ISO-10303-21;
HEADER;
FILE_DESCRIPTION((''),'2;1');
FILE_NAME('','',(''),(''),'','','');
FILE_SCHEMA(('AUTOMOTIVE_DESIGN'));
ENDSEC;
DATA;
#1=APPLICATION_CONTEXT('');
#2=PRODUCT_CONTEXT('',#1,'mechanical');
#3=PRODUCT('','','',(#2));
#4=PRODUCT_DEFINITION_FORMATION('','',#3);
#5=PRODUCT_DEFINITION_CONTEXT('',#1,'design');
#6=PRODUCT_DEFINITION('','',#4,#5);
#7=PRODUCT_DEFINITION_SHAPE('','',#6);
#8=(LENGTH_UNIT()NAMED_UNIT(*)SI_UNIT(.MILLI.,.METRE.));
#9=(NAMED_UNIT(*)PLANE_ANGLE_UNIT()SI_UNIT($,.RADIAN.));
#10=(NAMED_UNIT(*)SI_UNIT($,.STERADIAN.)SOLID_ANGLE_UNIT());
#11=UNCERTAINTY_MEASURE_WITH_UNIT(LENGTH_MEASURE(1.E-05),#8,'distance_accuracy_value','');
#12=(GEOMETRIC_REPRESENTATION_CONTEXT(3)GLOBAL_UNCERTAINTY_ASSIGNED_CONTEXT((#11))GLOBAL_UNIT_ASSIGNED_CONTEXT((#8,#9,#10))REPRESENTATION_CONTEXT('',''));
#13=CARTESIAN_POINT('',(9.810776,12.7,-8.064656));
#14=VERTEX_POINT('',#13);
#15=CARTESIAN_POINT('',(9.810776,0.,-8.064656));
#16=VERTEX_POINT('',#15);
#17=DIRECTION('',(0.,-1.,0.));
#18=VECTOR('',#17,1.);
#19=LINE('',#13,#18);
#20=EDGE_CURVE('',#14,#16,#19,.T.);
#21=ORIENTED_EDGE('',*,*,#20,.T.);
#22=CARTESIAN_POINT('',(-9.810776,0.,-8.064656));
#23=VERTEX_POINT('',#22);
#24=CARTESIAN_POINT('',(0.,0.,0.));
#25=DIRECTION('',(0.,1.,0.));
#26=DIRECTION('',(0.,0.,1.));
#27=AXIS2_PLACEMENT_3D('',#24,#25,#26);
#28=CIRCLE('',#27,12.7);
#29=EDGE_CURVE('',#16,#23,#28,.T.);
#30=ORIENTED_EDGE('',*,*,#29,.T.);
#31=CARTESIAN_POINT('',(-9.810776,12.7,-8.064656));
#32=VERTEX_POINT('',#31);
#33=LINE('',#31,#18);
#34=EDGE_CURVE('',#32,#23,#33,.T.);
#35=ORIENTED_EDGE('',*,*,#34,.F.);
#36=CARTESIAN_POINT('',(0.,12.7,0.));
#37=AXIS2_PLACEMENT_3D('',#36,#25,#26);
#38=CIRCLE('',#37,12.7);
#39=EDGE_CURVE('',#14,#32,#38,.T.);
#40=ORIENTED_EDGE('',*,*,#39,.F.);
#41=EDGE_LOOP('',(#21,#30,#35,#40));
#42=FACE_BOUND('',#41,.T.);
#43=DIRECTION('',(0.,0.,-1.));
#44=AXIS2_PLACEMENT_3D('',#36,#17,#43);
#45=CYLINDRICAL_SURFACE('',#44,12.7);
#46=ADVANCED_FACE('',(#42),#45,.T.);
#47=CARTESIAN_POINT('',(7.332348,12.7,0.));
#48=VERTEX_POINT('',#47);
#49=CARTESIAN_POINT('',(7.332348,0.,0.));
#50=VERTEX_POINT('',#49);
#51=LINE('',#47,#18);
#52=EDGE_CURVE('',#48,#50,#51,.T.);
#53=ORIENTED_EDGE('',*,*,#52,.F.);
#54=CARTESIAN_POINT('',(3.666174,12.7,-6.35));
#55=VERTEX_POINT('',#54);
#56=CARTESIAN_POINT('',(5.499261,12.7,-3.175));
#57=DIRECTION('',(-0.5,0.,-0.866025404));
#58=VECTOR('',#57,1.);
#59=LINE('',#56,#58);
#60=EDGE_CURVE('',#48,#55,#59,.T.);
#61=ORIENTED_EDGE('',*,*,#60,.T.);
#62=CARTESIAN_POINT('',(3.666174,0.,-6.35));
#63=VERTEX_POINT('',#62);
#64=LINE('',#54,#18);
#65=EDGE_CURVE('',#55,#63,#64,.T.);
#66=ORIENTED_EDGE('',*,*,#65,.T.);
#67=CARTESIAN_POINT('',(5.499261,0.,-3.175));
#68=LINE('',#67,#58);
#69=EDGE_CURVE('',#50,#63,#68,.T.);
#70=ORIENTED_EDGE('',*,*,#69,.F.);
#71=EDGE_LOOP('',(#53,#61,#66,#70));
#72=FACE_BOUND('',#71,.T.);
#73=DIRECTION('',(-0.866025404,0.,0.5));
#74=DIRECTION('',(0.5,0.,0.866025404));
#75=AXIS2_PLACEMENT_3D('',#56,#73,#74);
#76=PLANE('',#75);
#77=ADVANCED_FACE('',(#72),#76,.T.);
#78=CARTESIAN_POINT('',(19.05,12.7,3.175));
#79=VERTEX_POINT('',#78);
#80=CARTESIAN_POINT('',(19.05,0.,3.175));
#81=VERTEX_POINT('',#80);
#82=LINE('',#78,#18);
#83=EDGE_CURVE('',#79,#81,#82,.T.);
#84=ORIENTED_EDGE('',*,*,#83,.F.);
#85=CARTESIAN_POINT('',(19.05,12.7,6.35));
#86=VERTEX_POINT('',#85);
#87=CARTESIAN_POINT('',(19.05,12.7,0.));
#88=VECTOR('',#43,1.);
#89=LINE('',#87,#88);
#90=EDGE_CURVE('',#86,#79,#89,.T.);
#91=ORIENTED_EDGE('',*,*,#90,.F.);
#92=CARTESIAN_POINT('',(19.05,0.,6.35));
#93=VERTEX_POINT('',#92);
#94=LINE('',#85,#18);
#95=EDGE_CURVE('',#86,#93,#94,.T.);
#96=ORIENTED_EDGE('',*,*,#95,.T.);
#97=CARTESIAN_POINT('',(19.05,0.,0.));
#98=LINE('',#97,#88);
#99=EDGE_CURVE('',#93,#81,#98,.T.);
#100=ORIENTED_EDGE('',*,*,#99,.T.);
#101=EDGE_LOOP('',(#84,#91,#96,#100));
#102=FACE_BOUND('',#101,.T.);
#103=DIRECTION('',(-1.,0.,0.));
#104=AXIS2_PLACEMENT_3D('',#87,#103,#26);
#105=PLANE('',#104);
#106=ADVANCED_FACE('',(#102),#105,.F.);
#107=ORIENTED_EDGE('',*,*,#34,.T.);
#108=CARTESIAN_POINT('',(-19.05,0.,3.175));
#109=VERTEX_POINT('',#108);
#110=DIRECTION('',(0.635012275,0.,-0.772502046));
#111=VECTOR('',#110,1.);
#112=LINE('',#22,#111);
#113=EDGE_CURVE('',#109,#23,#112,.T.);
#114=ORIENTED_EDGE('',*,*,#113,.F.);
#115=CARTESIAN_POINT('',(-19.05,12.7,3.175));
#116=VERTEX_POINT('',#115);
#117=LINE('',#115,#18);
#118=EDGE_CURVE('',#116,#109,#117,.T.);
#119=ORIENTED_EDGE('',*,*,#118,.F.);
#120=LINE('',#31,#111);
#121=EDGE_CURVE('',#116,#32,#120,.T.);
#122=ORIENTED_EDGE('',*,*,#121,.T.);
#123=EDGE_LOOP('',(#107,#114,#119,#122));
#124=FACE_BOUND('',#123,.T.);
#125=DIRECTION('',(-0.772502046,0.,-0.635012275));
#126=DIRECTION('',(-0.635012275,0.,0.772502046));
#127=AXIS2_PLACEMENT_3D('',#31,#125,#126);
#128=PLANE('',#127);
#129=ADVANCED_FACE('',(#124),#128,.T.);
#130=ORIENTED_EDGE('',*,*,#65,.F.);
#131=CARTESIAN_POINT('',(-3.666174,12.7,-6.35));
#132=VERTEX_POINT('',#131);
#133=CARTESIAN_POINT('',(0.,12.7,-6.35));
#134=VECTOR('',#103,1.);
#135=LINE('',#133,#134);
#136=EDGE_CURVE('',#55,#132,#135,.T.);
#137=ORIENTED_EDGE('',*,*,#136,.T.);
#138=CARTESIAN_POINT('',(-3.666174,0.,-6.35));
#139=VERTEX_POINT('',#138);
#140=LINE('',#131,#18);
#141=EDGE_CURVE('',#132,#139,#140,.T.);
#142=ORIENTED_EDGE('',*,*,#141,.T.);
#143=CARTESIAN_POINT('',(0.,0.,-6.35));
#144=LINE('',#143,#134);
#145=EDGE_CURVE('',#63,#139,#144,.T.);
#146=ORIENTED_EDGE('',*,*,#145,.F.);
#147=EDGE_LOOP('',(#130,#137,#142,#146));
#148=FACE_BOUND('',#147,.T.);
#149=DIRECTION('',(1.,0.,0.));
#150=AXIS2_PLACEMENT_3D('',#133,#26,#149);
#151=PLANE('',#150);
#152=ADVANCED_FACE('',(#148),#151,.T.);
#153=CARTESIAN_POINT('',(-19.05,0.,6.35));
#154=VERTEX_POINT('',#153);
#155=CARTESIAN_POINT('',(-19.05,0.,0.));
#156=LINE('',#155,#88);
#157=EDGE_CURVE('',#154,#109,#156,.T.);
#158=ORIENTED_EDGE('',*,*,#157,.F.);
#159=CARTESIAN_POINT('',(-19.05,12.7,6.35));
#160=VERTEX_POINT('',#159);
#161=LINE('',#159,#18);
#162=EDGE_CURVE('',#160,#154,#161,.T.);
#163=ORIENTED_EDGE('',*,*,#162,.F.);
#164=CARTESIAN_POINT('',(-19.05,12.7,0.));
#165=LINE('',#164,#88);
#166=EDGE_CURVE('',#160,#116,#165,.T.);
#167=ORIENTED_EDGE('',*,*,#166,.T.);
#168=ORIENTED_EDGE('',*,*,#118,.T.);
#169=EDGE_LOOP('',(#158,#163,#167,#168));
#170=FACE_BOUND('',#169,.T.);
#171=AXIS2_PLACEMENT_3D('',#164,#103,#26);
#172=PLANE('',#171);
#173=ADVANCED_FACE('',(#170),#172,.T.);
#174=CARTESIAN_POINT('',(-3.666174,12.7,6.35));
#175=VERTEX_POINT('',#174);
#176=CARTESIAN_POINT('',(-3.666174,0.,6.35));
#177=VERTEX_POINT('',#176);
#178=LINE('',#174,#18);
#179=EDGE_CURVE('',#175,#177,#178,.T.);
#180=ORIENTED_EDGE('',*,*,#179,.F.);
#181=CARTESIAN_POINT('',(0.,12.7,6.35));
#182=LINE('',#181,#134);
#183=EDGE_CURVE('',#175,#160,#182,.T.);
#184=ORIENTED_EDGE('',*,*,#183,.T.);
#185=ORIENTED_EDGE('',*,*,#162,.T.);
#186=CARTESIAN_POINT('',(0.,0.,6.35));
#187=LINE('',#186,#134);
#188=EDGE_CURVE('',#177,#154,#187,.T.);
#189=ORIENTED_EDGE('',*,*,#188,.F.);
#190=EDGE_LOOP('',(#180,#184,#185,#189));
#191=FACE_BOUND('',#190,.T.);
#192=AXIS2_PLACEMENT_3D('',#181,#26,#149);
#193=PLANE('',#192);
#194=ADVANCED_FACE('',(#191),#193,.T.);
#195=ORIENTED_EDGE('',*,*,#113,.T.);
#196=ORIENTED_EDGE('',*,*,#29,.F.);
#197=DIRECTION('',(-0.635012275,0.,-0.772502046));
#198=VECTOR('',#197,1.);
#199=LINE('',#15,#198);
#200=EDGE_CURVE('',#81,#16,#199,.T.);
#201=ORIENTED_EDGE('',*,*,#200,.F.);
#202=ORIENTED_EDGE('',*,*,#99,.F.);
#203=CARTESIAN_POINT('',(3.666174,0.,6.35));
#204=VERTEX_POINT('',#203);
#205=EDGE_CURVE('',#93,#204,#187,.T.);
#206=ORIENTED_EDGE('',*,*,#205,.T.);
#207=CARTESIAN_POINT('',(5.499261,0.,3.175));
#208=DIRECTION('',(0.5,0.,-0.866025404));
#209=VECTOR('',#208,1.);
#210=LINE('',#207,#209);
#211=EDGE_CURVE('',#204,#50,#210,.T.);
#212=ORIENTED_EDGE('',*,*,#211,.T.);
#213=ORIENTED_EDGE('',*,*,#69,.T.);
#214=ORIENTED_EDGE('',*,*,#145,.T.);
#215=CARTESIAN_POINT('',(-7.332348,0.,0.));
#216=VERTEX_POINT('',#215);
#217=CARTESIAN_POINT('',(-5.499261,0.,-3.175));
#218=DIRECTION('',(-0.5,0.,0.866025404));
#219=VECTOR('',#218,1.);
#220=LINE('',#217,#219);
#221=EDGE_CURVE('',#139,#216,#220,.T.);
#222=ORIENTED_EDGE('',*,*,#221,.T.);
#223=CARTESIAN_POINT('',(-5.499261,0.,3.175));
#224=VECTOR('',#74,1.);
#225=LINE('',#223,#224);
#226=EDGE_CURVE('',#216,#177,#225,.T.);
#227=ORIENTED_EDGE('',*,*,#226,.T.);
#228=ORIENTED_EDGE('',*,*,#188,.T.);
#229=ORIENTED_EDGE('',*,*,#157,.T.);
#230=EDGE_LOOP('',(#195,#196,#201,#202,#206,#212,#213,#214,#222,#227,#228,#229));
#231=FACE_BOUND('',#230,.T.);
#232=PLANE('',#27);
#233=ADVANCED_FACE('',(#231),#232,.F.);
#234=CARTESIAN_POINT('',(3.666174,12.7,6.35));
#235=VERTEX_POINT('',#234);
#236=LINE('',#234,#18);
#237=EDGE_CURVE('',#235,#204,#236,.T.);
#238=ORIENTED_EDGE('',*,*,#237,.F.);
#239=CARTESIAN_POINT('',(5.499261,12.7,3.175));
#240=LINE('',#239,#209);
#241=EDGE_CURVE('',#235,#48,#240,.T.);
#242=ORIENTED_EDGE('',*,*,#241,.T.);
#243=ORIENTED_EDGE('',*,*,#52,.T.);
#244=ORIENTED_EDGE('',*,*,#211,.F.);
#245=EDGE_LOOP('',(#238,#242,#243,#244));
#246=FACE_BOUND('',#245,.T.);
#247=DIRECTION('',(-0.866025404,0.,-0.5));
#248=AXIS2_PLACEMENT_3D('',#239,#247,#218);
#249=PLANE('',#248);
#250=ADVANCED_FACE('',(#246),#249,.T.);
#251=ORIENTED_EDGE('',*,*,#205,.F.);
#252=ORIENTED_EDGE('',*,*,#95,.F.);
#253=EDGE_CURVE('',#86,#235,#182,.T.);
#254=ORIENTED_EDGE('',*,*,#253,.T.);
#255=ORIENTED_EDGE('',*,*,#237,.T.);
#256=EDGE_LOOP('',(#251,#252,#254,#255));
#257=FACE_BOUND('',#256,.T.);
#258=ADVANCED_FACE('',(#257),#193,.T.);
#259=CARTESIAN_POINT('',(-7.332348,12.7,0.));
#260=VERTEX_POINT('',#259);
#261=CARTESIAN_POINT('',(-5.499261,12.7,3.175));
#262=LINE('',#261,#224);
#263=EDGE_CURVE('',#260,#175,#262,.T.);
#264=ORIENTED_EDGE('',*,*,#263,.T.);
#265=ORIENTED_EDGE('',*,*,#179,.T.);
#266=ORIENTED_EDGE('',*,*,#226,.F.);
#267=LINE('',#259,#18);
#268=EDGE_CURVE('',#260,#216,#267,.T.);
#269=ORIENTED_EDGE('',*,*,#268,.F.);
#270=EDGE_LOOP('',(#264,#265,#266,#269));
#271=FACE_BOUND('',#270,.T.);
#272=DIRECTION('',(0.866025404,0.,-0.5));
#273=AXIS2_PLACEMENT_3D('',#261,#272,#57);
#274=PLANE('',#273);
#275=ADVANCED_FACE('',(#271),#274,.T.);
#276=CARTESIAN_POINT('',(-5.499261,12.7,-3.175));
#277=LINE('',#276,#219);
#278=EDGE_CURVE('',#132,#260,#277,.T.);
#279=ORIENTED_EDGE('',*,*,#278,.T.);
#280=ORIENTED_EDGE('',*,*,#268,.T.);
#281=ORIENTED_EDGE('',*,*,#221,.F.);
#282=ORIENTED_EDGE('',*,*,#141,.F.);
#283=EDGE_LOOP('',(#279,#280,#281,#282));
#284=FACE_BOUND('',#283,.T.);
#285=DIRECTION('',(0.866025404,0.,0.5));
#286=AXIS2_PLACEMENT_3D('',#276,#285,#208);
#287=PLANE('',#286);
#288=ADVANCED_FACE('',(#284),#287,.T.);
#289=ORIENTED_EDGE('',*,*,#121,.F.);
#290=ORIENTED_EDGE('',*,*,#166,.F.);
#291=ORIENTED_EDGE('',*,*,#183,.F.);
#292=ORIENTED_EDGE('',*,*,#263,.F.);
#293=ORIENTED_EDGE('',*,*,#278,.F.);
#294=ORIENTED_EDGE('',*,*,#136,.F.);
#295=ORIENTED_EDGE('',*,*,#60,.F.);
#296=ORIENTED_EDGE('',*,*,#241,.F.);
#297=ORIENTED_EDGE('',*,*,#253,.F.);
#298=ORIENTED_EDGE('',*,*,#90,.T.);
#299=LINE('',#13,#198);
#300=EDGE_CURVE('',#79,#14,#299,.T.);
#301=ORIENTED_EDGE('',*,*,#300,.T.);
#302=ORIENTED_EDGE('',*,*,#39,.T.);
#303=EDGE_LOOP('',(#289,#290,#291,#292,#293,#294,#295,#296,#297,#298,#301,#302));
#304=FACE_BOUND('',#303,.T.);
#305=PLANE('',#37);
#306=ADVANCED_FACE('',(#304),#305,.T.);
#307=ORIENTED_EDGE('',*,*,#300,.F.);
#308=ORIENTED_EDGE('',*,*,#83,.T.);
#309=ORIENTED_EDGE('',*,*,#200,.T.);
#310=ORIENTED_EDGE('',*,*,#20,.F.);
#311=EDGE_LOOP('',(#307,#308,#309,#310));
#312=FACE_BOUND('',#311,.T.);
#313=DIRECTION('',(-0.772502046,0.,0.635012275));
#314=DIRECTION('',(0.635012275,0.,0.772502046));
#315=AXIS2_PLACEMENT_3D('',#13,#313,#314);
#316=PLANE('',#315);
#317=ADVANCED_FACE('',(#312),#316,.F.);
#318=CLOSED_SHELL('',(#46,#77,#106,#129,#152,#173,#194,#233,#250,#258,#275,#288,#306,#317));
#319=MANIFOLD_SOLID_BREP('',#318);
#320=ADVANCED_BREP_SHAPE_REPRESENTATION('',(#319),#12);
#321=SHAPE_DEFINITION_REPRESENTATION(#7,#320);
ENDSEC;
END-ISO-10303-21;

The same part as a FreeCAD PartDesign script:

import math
import FreeCAD as App
import Part
import Sketcher
Q = App.Units.Quantity

doc = App.newDocument("Part")
body = doc.addObject("PartDesign::Body", "Body")

sketch1 = doc.addObject("Sketcher::SketchObject", "Sketch")
body.addObject(sketch1)
sketch1.AttachmentSupport = (doc.XZ_Plane, [""])
sketch1.MapMode = "FlatFace"
sketch1.addGeometry(Part.LineSegment(App.Vector(3.7, 6.3, 0), App.Vector(19.1, 6.3, 0)), False)
sketch1.addGeometry(Part.LineSegment(App.Vector(19.1, 6.3, 0), App.Vector(19.1, 3.2, 0)), False)
sketch1.addGeometry(Part.LineSegment(App.Vector(19.1, 3.2, 0), App.Vector(9.8, -8.1, 0)), False)
sketch1.addGeometry(Part.ArcOfCircle(Part.Circle(App.Vector(0, 0, 0), App.Vector(0, 0, 1), 12.7), math.radians(-141), math.radians(-39)), False)
sketch1.addGeometry(Part.LineSegment(App.Vector(-9.8, -8.1, 0), App.Vector(-19.1, 3.2, 0)), False)
sketch1.addGeometry(Part.LineSegment(App.Vector(-19.1, 3.2, 0), App.Vector(-19.1, 6.3, 0)), False)
sketch1.addGeometry(Part.LineSegment(App.Vector(-19.1, 6.3, 0), App.Vector(-3.7, 6.3, 0)), False)
sketch1.addGeometry(Part.LineSegment(App.Vector(-3.7, 6.3, 0), App.Vector(-7.3, 0, 0)), False)
sketch1.addGeometry(Part.LineSegment(App.Vector(-7.3, 0, 0), App.Vector(-3.7, -6.3, 0)), False)
sketch1.addGeometry(Part.LineSegment(App.Vector(-3.7, -6.3, 0), App.Vector(3.7, -6.3, 0)), False)
sketch1.addGeometry(Part.LineSegment(App.Vector(3.7, -6.3, 0), App.Vector(7.3, 0, 0)), False)
sketch1.addGeometry(Part.LineSegment(App.Vector(7.3, 0, 0), App.Vector(3.7, 6.3, 0)), False)
sketch1.addConstraint(Sketcher.Constraint("Coincident", 0, 2, 1, 1))
sketch1.addConstraint(Sketcher.Constraint("Coincident", 1, 2, 2, 1))
sketch1.addConstraint(Sketcher.Constraint("Tangent", 2, 2, 3, 2))
sketch1.addConstraint(Sketcher.Constraint("Tangent", 3, 1, 4, 1))
sketch1.addConstraint(Sketcher.Constraint("Coincident", 4, 2, 5, 1))
sketch1.addConstraint(Sketcher.Constraint("Coincident", 5, 2, 6, 1))
sketch1.addConstraint(Sketcher.Constraint("Coincident", 6, 2, 7, 1))
sketch1.addConstraint(Sketcher.Constraint("Coincident", 7, 2, 8, 1))
sketch1.addConstraint(Sketcher.Constraint("Coincident", 8, 2, 9, 1))
sketch1.addConstraint(Sketcher.Constraint("Coincident", 9, 2, 10, 1))
sketch1.addConstraint(Sketcher.Constraint("Coincident", 10, 2, 11, 1))
sketch1.addConstraint(Sketcher.Constraint("Coincident", 11, 2, 0, 1))
sketch1.addConstraint(Sketcher.Constraint("Horizontal", 0))
sketch1.addConstraint(Sketcher.Constraint("Vertical", 1))
sketch1.addConstraint(Sketcher.Constraint("Vertical", 5))
sketch1.addConstraint(Sketcher.Constraint("Horizontal", 6))
sketch1.addConstraint(Sketcher.Constraint("Horizontal", 9))
sketch1.addConstraint(Sketcher.Constraint("Coincident", 3, 3, -1, 1))
sketch1.addConstraint(Sketcher.Constraint("Symmetric", 6, 2, 9, 2, -1, 1))
sketch1.addConstraint(Sketcher.Constraint("Symmetric", 7, 2, 10, 2, -1, 1))
sketch1.addConstraint(Sketcher.Constraint("Symmetric", 8, 2, 11, 2, -1, 1))
sketch1.addConstraint(Sketcher.Constraint("Symmetric", 1, 2, 4, 2, -2))
sketch1.addConstraint(Sketcher.Constraint("PointOnObject", 7, 2, -1))
sketch1.addConstraint(Sketcher.Constraint("Vertical", 6, 2, 8, 2))
sketch1.addConstraint(Sketcher.Constraint("Radius", 3, Q("0.5 in")))
sketch1.addConstraint(Sketcher.Constraint("Angle", 7, Q("-120 deg")))
sketch1.addConstraint(Sketcher.Constraint("DistanceX", 4, 2, 1, 2, Q("1.5 in")))
sketch1.addConstraint(Sketcher.Constraint("DistanceY", 8, 2, 6, 2, Q("0.5 in")))
sketch1.addConstraint(Sketcher.Constraint("DistanceY", 1, 2, 1, 1, Q("0.125 in")))
sketch1.addConstraint(Sketcher.Constraint("DistanceX", 9, 1, 9, 2, Q("7.332348 mm")))
pad1 = doc.addObject("PartDesign::Pad", "Pad")
body.addObject(pad1)
pad1.Profile = sketch1
pad1.Length = Q("0.5 in")
pad1.Reversed = True

doc.recompute()
